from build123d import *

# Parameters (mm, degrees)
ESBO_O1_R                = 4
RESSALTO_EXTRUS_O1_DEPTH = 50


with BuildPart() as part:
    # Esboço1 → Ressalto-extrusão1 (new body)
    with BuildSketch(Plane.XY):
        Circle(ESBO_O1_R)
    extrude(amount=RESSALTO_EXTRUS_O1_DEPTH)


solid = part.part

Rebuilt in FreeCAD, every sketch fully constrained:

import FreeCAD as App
import Part
import Sketcher
from FreeCAD import Vector
Q = App.Units.Quantity

doc = App.newDocument("Part")
params = doc.addObject("Spreadsheet::Sheet", "Params")
for row, (alias, value) in enumerate([
    ("sketch1_diameter", "8 mm"),
    ("pad1_length", "50 mm"),
], start=1):
    params.set(f"A{row}", alias)
    params.set(f"B{row}", "=" + value)
    params.setAlias(f"B{row}", alias)

body = doc.addObject("PartDesign::Body", "Body")

# Sketch on XY plane
sketch1 = body.newObject("Sketcher::SketchObject", "Sketch")
sketch1.AttachmentSupport = (doc.getObject("XY_Plane"), [""])
sketch1.MapMode = "FlatFace"
sketch1.addGeometry(Part.Circle(Vector(0, 0, 0), Vector(0, 0, 1), 4), False)
sketch1.addConstraint(Sketcher.Constraint("Coincident", 0, 3, -1, 1))
sketch1.addConstraint(Sketcher.Constraint("Diameter", 0, Q("8 mm")))
sketch1.setExpression("Constraints[1]", "Params.sketch1_diameter")
pad1 = body.newObject("PartDesign::Pad", "Pad")
pad1.Profile = sketch1
pad1.setExpression("Length", "Params.pad1_length")

doc.recompute()
